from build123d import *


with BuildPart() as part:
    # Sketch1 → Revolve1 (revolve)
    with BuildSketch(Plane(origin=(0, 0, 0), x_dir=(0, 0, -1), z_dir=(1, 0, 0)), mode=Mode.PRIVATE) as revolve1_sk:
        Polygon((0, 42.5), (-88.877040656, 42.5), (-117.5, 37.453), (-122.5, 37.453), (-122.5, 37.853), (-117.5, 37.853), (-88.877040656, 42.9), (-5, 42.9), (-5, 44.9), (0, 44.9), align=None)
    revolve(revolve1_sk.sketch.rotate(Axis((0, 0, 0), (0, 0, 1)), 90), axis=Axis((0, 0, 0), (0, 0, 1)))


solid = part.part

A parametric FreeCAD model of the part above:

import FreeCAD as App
import Part
import Sketcher
Q = App.Units.Quantity

doc = App.newDocument("Part")
body = doc.addObject("PartDesign::Body", "Body")

# Sketch on YZ plane
sketch1 = body.newObject("Sketcher::SketchObject", "Sketch")
sketch1.AttachmentSupport = (doc.getObject("YZ_Plane"), [""])
sketch1.MapMode = "FlatFace"
sketch1.addGeometry(Part.LineSegment(App.Vector(42.5, 88.877041, 0), App.Vector(42.5, 0, 0)), False)
sketch1.addGeometry(Part.LineSegment(App.Vector(42.5, 0, 0), App.Vector(44.9, 0, 0)), False)
sketch1.addGeometry(Part.LineSegment(App.Vector(44.9, 0, 0), App.Vector(44.9, 5, 0)), False)
sketch1.addGeometry(Part.LineSegment(App.Vector(44.9, 5, 0), App.Vector(42.9, 5, 0)), False)
sketch1.addGeometry(Part.LineSegment(App.Vector(42.9, 5, 0), App.Vector(42.9, 88.877041, 0)), False)
sketch1.addGeometry(Part.LineSegment(App.Vector(42.9, 88.877041, 0), App.Vector(37.853, 117.5, 0)), False)
sketch1.addGeometry(Part.LineSegment(App.Vector(37.853, 117.5, 0), App.Vector(37.853, 122.5, 0)), False)
sketch1.addGeometry(Part.LineSegment(App.Vector(37.853, 122.5, 0), App.Vector(37.453, 122.5, 0)), False)
sketch1.addGeometry(Part.LineSegment(App.Vector(37.453, 122.5, 0), App.Vector(37.453, 117.5, 0)), False)
sketch1.addGeometry(Part.LineSegment(App.Vector(37.453, 117.5, 0), App.Vector(42.5, 88.877041, 0)), False)
sketch1.addConstraint(Sketcher.Constraint("Coincident", 0, 2, 1, 1))
sketch1.addConstraint(Sketcher.Constraint("Coincident", 1, 2, 2, 1))
sketch1.addConstraint(Sketcher.Constraint("Coincident", 2, 2, 3, 1))
sketch1.addConstraint(Sketcher.Constraint("Coincident", 3, 2, 4, 1))
sketch1.addConstraint(Sketcher.Constraint("Coincident", 4, 2, 5, 1))
sketch1.addConstraint(Sketcher.Constraint("Coincident", 5, 2, 6, 1))
sketch1.addConstraint(Sketcher.Constraint("Coincident", 6, 2, 7, 1))
sketch1.addConstraint(Sketcher.Constraint("Coincident", 7, 2, 8, 1))
sketch1.addConstraint(Sketcher.Constraint("Coincident", 8, 2, 9, 1))
sketch1.addConstraint(Sketcher.Constraint("Coincident", 9, 2, 0, 1))
sketch1.addConstraint(Sketcher.Constraint("Vertical", 0))
sketch1.addConstraint(Sketcher.Constraint("Horizontal", 1))
sketch1.addConstraint(Sketcher.Constraint("Vertical", 2))
sketch1.addConstraint(Sketcher.Constraint("Horizontal", 3))
sketch1.addConstraint(Sketcher.Constraint("Vertical", 4))
sketch1.addConstraint(Sketcher.Constraint("Vertical", 6))
sketch1.addConstraint(Sketcher.Constraint("Horizontal", 7))
sketch1.addConstraint(Sketcher.Constraint("Vertical", 8))
sketch1.addConstraint(Sketcher.Constraint("PointOnObject", 0, 2, -1))
sketch1.addConstraint(Sketcher.Constraint("Parallel", 5, 9))
sketch1.addConstraint(Sketcher.Constraint("Horizontal", 5, 2, 8, 2))
sketch1.addConstraint(Sketcher.Constraint("Horizontal", 4, 2, 9, 2))
sketch1.addConstraint(Sketcher.Constraint("Equal", 2, 6))
sketch1.addConstraint(Sketcher.Constraint("DistanceX", 3, 2, 3, 1, Q("2 mm")))
sketch1.addConstraint(Sketcher.Constraint("DistanceY", 2, 1, 2, 2, Q("5 mm")))
sketch1.addConstraint(Sketcher.Constraint("Angle", 5, Q("100 deg")))
sketch1.addConstraint(Sketcher.Constraint("DistanceX", 1, 1, 1, 2, Q("2.4 mm")))
sketch1.addConstraint(Sketcher.Constraint("DistanceX", -1, 1, 0, 2, Q("42.5 mm")))
sketch1.addConstraint(Sketcher.Constraint("DistanceY", -1, 1, 5, 2, Q("117.5 mm")))
sketch1.addConstraint(Sketcher.Constraint("DistanceX", -1, 1, 5, 2, Q("37.853 mm")))
revolution = body.newObject("PartDesign::Revolution", "Revolution")
revolution.Profile = sketch1
revolution.ReferenceAxis = (sketch1, ["V_Axis"])
revolution.Angle = 360

doc.recompute()
